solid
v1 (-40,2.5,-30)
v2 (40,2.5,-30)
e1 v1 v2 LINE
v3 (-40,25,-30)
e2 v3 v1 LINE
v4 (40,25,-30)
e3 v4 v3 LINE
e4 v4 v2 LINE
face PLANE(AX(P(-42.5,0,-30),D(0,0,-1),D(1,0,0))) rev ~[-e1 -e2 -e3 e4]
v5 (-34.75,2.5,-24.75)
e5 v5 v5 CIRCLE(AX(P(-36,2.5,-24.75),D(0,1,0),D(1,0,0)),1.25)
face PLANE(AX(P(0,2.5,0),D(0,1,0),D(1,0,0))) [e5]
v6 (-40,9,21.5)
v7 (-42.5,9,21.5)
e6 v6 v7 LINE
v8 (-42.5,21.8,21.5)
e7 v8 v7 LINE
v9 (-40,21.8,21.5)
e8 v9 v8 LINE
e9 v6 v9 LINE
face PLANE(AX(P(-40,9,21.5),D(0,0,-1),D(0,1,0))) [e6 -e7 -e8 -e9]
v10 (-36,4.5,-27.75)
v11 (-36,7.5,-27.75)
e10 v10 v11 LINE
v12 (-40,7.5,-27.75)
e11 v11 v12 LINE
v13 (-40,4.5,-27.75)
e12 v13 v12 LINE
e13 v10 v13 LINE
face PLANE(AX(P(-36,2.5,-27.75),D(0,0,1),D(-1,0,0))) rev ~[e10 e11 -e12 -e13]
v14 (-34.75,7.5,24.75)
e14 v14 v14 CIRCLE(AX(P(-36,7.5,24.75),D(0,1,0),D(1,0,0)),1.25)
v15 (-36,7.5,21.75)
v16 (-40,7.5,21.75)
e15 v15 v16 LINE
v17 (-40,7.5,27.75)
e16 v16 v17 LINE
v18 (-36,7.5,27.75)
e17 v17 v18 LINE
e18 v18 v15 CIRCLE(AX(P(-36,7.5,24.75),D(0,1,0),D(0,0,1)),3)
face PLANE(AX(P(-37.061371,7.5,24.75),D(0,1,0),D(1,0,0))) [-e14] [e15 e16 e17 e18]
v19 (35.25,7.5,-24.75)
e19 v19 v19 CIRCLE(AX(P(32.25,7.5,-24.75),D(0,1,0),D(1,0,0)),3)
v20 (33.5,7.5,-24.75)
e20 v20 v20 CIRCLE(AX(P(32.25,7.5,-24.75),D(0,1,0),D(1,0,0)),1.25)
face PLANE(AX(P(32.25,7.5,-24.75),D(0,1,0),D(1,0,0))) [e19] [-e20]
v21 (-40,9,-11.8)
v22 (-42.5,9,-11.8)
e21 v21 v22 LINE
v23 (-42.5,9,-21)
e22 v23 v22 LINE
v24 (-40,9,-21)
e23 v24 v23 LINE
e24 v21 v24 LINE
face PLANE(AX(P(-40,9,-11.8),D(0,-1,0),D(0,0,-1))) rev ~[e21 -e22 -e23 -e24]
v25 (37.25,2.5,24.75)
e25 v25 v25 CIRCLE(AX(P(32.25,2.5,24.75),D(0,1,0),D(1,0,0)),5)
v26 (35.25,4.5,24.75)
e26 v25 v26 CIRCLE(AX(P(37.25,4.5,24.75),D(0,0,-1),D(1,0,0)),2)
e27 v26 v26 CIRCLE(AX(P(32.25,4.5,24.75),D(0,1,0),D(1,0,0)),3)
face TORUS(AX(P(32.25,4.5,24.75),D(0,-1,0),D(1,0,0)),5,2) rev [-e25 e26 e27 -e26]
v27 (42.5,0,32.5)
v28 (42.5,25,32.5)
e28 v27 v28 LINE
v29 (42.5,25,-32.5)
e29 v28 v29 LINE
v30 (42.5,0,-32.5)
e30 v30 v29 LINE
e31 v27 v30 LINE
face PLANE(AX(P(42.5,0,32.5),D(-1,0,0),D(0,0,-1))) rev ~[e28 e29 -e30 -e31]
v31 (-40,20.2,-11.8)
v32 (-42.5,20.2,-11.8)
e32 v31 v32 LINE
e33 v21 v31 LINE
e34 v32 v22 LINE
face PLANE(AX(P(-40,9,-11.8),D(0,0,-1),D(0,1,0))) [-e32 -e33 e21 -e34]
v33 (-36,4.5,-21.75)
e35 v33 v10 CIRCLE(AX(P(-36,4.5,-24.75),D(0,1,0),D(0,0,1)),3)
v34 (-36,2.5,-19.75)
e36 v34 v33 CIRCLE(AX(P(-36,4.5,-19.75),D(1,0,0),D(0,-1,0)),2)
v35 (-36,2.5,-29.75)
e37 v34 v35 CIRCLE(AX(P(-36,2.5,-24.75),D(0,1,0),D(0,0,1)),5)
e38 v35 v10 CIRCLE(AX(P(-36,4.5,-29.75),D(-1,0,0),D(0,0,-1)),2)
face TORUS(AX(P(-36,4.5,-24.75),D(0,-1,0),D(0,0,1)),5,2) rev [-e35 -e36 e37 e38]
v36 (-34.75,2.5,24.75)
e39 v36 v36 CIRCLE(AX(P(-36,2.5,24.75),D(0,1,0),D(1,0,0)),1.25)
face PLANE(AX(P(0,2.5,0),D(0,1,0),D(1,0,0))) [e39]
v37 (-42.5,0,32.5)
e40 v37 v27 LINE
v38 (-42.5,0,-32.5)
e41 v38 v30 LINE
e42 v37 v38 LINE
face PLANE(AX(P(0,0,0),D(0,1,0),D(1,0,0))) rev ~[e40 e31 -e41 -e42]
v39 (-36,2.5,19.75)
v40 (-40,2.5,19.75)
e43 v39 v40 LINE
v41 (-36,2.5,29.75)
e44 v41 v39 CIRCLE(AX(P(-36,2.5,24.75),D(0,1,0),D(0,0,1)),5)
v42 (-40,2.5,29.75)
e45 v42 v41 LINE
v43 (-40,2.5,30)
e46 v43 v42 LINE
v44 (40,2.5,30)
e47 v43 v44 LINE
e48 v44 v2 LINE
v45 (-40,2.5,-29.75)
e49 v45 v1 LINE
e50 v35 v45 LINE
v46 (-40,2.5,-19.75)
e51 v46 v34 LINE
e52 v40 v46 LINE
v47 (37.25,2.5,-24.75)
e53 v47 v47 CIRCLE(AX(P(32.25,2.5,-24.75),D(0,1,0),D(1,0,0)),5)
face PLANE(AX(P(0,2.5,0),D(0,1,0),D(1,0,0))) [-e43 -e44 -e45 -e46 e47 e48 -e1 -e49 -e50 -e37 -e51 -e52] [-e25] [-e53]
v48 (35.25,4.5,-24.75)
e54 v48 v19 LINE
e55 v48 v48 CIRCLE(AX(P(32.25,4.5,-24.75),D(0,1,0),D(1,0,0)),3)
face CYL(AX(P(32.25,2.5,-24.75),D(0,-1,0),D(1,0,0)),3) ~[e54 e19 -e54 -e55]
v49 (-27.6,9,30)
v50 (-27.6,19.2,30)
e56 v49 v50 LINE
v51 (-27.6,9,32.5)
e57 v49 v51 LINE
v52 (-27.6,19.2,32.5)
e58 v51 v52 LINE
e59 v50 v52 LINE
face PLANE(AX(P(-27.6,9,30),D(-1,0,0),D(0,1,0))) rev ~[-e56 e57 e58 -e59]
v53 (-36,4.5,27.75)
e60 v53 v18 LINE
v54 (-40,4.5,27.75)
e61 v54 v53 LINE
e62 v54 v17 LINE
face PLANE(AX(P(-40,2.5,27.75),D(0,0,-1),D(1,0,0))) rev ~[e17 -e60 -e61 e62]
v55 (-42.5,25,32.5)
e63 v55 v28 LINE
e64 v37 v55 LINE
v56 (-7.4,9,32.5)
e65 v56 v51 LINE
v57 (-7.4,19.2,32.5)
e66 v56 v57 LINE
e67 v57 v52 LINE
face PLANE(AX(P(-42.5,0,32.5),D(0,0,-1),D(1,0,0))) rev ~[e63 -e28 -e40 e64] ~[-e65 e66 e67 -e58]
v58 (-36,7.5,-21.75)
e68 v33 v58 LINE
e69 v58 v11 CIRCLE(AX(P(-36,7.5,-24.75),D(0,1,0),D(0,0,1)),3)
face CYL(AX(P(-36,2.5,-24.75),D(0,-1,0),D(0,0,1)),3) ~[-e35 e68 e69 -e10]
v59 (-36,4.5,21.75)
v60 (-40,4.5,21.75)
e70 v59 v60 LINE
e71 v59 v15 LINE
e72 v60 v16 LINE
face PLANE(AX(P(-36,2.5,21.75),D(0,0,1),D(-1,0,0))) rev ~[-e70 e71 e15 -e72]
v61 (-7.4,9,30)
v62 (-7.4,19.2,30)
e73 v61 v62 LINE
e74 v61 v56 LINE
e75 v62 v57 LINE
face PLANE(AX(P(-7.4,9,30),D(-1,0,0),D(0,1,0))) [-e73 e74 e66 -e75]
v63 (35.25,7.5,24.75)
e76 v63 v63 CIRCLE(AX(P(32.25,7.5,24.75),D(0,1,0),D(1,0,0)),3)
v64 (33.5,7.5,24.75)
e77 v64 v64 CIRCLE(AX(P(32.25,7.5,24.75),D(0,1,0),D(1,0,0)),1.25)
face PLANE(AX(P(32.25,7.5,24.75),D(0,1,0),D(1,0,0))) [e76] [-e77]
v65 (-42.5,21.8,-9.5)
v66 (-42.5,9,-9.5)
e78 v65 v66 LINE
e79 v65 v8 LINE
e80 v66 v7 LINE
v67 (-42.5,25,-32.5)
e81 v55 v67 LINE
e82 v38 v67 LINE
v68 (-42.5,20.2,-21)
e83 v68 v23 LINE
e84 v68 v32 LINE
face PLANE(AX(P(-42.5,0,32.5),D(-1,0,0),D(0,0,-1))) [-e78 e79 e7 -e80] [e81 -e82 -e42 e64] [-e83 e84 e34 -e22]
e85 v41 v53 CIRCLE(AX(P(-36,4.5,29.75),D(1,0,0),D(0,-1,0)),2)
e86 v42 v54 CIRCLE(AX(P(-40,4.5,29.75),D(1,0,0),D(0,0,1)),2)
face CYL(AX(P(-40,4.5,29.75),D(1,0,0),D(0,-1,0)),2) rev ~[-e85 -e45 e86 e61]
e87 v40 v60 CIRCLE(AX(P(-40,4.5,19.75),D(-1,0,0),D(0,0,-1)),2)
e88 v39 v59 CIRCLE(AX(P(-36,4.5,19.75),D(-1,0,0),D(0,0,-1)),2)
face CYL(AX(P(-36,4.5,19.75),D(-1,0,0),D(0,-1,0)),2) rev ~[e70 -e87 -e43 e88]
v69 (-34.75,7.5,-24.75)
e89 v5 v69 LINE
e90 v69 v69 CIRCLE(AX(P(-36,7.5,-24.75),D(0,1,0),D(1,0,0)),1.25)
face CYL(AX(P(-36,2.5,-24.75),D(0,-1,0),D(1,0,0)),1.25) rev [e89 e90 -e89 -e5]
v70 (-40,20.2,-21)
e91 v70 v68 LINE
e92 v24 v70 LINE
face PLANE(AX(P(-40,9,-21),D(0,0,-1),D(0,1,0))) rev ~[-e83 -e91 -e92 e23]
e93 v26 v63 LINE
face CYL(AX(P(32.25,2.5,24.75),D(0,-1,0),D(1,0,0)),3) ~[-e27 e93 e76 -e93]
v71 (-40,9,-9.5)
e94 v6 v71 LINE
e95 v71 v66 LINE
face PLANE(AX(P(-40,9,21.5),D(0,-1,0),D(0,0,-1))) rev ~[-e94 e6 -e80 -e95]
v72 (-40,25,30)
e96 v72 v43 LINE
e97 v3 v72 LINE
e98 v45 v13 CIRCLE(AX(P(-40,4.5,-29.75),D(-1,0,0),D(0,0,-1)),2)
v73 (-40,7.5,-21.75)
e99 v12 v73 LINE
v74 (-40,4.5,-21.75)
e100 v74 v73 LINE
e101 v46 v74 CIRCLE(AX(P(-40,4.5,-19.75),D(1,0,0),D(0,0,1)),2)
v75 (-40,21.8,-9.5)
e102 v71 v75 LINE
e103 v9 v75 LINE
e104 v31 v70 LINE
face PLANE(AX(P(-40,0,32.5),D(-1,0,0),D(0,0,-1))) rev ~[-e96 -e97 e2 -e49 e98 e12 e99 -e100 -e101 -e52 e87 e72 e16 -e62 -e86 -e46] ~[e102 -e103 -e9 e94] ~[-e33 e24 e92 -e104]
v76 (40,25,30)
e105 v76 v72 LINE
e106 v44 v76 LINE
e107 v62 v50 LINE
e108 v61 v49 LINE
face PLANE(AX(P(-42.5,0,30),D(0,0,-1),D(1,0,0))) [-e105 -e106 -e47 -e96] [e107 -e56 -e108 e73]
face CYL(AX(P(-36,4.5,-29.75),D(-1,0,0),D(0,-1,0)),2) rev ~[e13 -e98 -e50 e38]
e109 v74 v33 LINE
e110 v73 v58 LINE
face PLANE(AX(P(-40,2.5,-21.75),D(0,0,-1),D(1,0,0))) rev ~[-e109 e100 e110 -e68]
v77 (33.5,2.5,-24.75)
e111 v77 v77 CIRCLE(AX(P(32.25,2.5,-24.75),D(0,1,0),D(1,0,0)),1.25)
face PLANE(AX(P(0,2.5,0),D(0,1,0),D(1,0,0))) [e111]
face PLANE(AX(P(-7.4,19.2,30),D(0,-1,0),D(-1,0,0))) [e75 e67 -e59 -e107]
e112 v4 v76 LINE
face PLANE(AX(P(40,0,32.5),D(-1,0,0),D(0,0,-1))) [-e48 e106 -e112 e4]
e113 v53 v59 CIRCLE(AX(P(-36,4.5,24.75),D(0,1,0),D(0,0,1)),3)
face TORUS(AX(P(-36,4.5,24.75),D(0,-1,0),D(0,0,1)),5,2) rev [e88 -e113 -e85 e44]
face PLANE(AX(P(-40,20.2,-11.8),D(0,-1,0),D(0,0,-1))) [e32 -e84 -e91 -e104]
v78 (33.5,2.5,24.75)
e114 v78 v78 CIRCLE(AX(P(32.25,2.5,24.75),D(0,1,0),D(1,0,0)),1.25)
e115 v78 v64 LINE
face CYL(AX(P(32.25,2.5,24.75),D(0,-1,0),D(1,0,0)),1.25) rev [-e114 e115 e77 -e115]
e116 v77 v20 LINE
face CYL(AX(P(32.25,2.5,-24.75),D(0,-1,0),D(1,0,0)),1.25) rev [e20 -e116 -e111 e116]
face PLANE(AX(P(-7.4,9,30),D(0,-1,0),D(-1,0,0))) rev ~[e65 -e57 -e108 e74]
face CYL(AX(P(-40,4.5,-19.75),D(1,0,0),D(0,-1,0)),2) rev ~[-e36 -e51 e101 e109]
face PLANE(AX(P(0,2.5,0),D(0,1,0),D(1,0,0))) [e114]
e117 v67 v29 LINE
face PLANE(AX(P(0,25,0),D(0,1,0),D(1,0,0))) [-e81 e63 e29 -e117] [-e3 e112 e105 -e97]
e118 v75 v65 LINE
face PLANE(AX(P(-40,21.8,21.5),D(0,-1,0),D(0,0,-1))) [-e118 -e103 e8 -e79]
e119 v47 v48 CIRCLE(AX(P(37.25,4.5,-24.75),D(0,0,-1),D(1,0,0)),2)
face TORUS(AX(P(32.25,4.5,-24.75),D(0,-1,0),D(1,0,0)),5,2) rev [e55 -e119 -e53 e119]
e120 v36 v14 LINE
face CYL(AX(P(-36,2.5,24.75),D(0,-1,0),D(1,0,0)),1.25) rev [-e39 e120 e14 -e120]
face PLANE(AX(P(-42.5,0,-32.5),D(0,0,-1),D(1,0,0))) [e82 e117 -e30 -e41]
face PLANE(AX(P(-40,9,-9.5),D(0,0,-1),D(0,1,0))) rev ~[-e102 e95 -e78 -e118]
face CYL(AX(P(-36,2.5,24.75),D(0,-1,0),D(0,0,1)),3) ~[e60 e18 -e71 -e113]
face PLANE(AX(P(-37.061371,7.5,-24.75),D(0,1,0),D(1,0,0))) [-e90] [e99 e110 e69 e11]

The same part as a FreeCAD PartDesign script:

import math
import FreeCAD as App
import Part
import Sketcher


def edges_at(feature, points):
    """Names of the edges that pass closest to the given points."""
    edges = feature.Shape.Edges
    near = lambda p: min(range(len(edges)), key=lambda i: edges[i].distToShape(Part.Vertex(*p))[0])
    return sorted({f"Edge{near(p) + 1}" for p in points})


def faces_at(feature, points):
    """Names of the faces that lie closest to the given points."""
    faces = feature.Shape.Faces
    near = lambda p: min(range(len(faces)), key=lambda i: faces[i].distToShape(Part.Vertex(*p))[0])
    return sorted({f"Face{near(p) + 1}" for p in points})

doc = App.newDocument("Part")
params = doc.addObject("Spreadsheet::Sheet", "Params")
for row, (alias, value) in enumerate([
    ("sketch1_width", "85 mm"),
    ("sketch1_height", "65 mm"),
    ("pad1_length", "25 mm"),
    ("thickness_wall", "2.5 mm"),
    ("sketch2_diameter", "6 mm"),
    ("sketch2_diameter2", "2.5 mm"),
    ("sketch2_width", "4 mm"),
    ("pad2_length", "5 mm"),
    ("sketch3_width", "20.2 mm"),
    ("sketch3_height", "10.2 mm"),
    ("sketch4_height", "31 mm"),
    ("sketch4_width", "11.2 mm"),
    ("sketch4_width2", "12.8 mm"),
    ("sketch4_height2", "9.2 mm"),
    ("fillet_radius", "2 mm"),
], start=1):
    params.set(f"A{row}", alias)
    params.set(f"B{row}", "=" + value)
    params.setAlias(f"B{row}", alias)

body = doc.addObject("PartDesign::Body", "Body")

# Sketch on XZ plane
sketch1 = body.newObject("Sketcher::SketchObject", "Sketch")
sketch1.AttachmentSupport = (doc.getObject("XZ_Plane"), [""])
sketch1.MapMode = "FlatFace"
sketch1.addGeometry(Part.LineSegment(App.Vector(-42.5, -32.5, 0), App.Vector(-42.5, 32.5, 0)), False)
sketch1.addGeometry(Part.LineSegment(App.Vector(-42.5, 32.5, 0), App.Vector(42.5, 32.5, 0)), False)
sketch1.addGeometry(Part.LineSegment(App.Vector(42.5, 32.5, 0), App.Vector(42.5, -32.5, 0)), False)
sketch1.addGeometry(Part.LineSegment(App.Vector(42.5, -32.5, 0), App.Vector(-42.5, -32.5, 0)), False)
sketch1.addConstraint(Sketcher.Constraint("Coincident", 0, 2, 1, 1))
sketch1.addConstraint(Sketcher.Constraint("Coincident", 1, 2, 2, 1))
sketch1.addConstraint(Sketcher.Constraint("Coincident", 2, 2, 3, 1))
sketch1.addConstraint(Sketcher.Constraint("Coincident", 3, 2, 0, 1))
sketch1.addConstraint(Sketcher.Constraint("Vertical", 0))
sketch1.addConstraint(Sketcher.Constraint("Horizontal", 1))
sketch1.addConstraint(Sketcher.Constraint("Vertical", 2))
sketch1.addConstraint(Sketcher.Constraint("Horizontal", 3))
sketch1.addConstraint(Sketcher.Constraint("Symmetric", 0, 2, 2, 2, -1, 1))
sketch1.addConstraint(Sketcher.Constraint("DistanceX", 1, 1, 1, 2, 85.0))
sketch1.addConstraint(Sketcher.Constraint("DistanceY", 0, 1, 0, 2, 65.0))
sketch1.setExpression("Constraints[9]", "Params.sketch1_width")
sketch1.setExpression("Constraints[10]", "Params.sketch1_height")
pad1 = body.newObject("PartDesign::Pad", "Pad")
pad1.Profile = sketch1
pad1.setExpression("Length", "Params.pad1_length")
pad1.Reversed = True
doc.recompute()

thickness = body.newObject("PartDesign::Thickness", "Thickness")
thickness.Base = (pad1, faces_at(pad1, [(0, 25, 0)]))
thickness.setExpression("Value", "Params.thickness_wall")
thickness.Reversed = True
thickness.Join = "Intersection"

# Sketch on XZ plane
sketch2 = body.newObject("Sketcher::SketchObject", "Sketch001")
sketch2.AttachmentSupport = (doc.getObject("XZ_Plane"), [""])
sketch2.MapMode = "FlatFace"
sketch2.AttachmentOffset = App.Placement(App.Vector(0, 0, -2.5), App.Rotation())
sketch2.addGeometry(Part.Circle(App.Vector(32.25, -24.75, 0), App.Vector(0, 0, 1), 3), False)
sketch2.addGeometry(Part.Circle(App.Vector(32.25, -24.75, 0), App.Vector(0, 0, 1), 1.25), False)
sketch2.addGeometry(Part.Circle(App.Vector(32.25, 24.75, 0), App.Vector(0, 0, 1), 3), False)
sketch2.addGeometry(Part.Circle(App.Vector(32.25, 24.75, 0), App.Vector(0, 0, 1), 1.25), False)
sketch2.addGeometry(Part.LineSegment(App.Vector(-36, -27.75, 0), App.Vector(-40, -27.75, 0)), False)
sketch2.addGeometry(Part.LineSegment(App.Vector(-40, -27.75, 0), App.Vector(-40, -21.75, 0)), False)
sketch2.addGeometry(Part.LineSegment(App.Vector(-40, -21.75, 0), App.Vector(-36, -21.75, 0)), False)
sketch2.addGeometry(Part.ArcOfCircle(Part.Circle(App.Vector(-36, -24.75, 0), App.Vector(0, 0, 1), 3), math.radians(-90), math.radians(90)), False)
sketch2.addGeometry(Part.Circle(App.Vector(-36, -24.75, 0), App.Vector(0, 0, 1), 1.25), False)
sketch2.addGeometry(Part.LineSegment(App.Vector(-36, 21.75, 0), App.Vector(-40, 21.75, 0)), False)
sketch2.addGeometry(Part.LineSegment(App.Vector(-40, 21.75, 0), App.Vector(-40, 27.75, 0)), False)
sketch2.addGeometry(Part.LineSegment(App.Vector(-40, 27.75, 0), App.Vector(-36, 27.75, 0)), False)
sketch2.addGeometry(Part.ArcOfCircle(Part.Circle(App.Vector(-36, 24.75, 0), App.Vector(0, 0, 1), 3), math.radians(-90), math.radians(90)), False)
sketch2.addGeometry(Part.Circle(App.Vector(-36, 24.75, 0), App.Vector(0, 0, 1), 1.25), False)
sketch2.addConstraint(Sketcher.Constraint("Coincident", 4, 2, 5, 1))
sketch2.addConstraint(Sketcher.Constraint("Coincident", 5, 2, 6, 1))
sketch2.addConstraint(Sketcher.Constraint("Tangent", 6, 2, 7, 2))
sketch2.addConstraint(Sketcher.Constraint("Tangent", 7, 1, 4, 1))
sketch2.addConstraint(Sketcher.Constraint("Coincident", 9, 2, 10, 1))
sketch2.addConstraint(Sketcher.Constraint("Coincident", 10, 2, 11, 1))
sketch2.addConstraint(Sketcher.Constraint("Tangent", 11, 2, 12, 2))
sketch2.addConstraint(Sketcher.Constraint("Tangent", 12, 1, 9, 1))
sketch2.addConstraint(Sketcher.Constraint("Horizontal", 4))
sketch2.addConstraint(Sketcher.Constraint("Vertical", 5))
sketch2.addConstraint(Sketcher.Constraint("Horizontal", 6))
sketch2.addConstraint(Sketcher.Constraint("Horizontal", 9))
sketch2.addConstraint(Sketcher.Constraint("Vertical", 10))
sketch2.addConstraint(Sketcher.Constraint("Horizontal", 11))
sketch2.addConstraint(Sketcher.Constraint("Coincident", 1, 3, 0, 3))
sketch2.addConstraint(Sketcher.Constraint("Coincident", 3, 3, 2, 3))
sketch2.addConstraint(Sketcher.Constraint("Coincident", 8, 3, 7, 3))
sketch2.addConstraint(Sketcher.Constraint("Coincident", 13, 3, 12, 3))
sketch2.addConstraint(Sketcher.Constraint("Equal", 0, 2))
sketch2.addConstraint(Sketcher.Constraint("Equal", 1, 3))
sketch2.addConstraint(Sketcher.Constraint("Equal", 2, 7))
sketch2.addConstraint(Sketcher.Constraint("Equal", 3, 8))
sketch2.addConstraint(Sketcher.Constraint("Equal", 7, 12))
sketch2.addConstraint(Sketcher.Constraint("Equal", 8, 13))
sketch2.addConstraint(Sketcher.Constraint("Symmetric", 0, 3, 2, 3, -1))
sketch2.addConstraint(Sketcher.Constraint("Symmetric", 7, 3, 12, 3, -1))
sketch2.addConstraint(Sketcher.Constraint("Horizontal", 1, 3, 7, 3))
sketch2.addConstraint(Sketcher.Constraint("Vertical", 5, 2, 9, 2))
sketch2.addConstraint(Sketcher.Constraint("Diameter", 0, 6.0))
sketch2.addConstraint(Sketcher.Constraint("Diameter", 1, 2.5))
sketch2.addConstraint(Sketcher.Constraint("DistanceX", 4, 2, 4, 1, 4.0))
sketch2.addConstraint(Sketcher.Constraint("DistanceX", 7, 3, -1, 1, 36.0))
sketch2.addConstraint(Sketcher.Constraint("DistanceY", 0, 3, 2, 3, 49.5))
sketch2.addConstraint(Sketcher.Constraint("DistanceX", -1, 1, 0, 3, 32.25))
sketch2.setExpression("Constraints[28]", "Params.sketch2_diameter")
sketch2.setExpression("Constraints[29]", "Params.sketch2_diameter2")
sketch2.setExpression("Constraints[30]", "Params.sketch2_width")
pad2 = body.newObject("PartDesign::Pad", "Pad001")
pad2.Profile = sketch2
pad2.setExpression("Length", "Params.pad2_length")
pad2.Reversed = True

# Sketch on XY plane
sketch3 = body.newObject("Sketcher::SketchObject", "Sketch002")
sketch3.AttachmentSupport = (doc.getObject("XY_Plane"), [""])
sketch3.MapMode = "FlatFace"
sketch3.AttachmentOffset = App.Placement(App.Vector(0, 0, 30), App.Rotation())
sketch3.addGeometry(Part.LineSegment(App.Vector(-7.4, 19.2, 0), App.Vector(-7.4, 9, 0)), False)
sketch3.addGeometry(Part.LineSegment(App.Vector(-7.4, 9, 0), App.Vector(-27.6, 9, 0)), False)
sketch3.addGeometry(Part.LineSegment(App.Vector(-27.6, 9, 0), App.Vector(-27.6, 19.2, 0)), False)
sketch3.addGeometry(Part.LineSegment(App.Vector(-27.6, 19.2, 0), App.Vector(-7.4, 19.2, 0)), False)
sketch3.addConstraint(Sketcher.Constraint("Coincident", 0, 2, 1, 1))
sketch3.addConstraint(Sketcher.Constraint("Coincident", 1, 2, 2, 1))
sketch3.addConstraint(Sketcher.Constraint("Coincident", 2, 2, 3, 1))
sketch3.addConstraint(Sketcher.Constraint("Coincident", 3, 2, 0, 1))
sketch3.addConstraint(Sketcher.Constraint("Vertical", 0))
sketch3.addConstraint(Sketcher.Constraint("Horizontal", 1))
sketch3.addConstraint(Sketcher.Constraint("Vertical", 2))
sketch3.addConstraint(Sketcher.Constraint("Horizontal", 3))
sketch3.addConstraint(Sketcher.Constraint("DistanceX", 1, 2, 1, 1, 20.2))
sketch3.addConstraint(Sketcher.Constraint("DistanceY", 0, 2, 0, 1, 10.2))
sketch3.addConstraint(Sketcher.Constraint("DistanceY", -1, 1, 0, 2, 9.0))
sketch3.addConstraint(Sketcher.Constraint("DistanceX", 0, 2, -1, 1, 7.4))
sketch3.setExpression("Constraints[8]", "Params.sketch3_width")
sketch3.setExpression("Constraints[9]", "Params.sketch3_height")
pocket1 = body.newObject("PartDesign::Pocket", "Pocket")
pocket1.Profile = sketch3
pocket1.Type = "ThroughAll"
pocket1.Reversed = True

# Sketch on YZ plane
sketch4 = body.newObject("Sketcher::SketchObject", "Sketch003")
sketch4.AttachmentSupport = (doc.getObject("YZ_Plane"), [""])
sketch4.MapMode = "FlatFace"
sketch4.AttachmentOffset = App.Placement(App.Vector(0, 0, -40), App.Rotation())
sketch4.addGeometry(Part.LineSegment(App.Vector(20.2, -11.8, 0), App.Vector(9, -11.8, 0)), False)
sketch4.addGeometry(Part.LineSegment(App.Vector(9, -11.8, 0), App.Vector(9, -21, 0)), False)
sketch4.addGeometry(Part.LineSegment(App.Vector(9, -21, 0), App.Vector(20.2, -21, 0)), False)
sketch4.addGeometry(Part.LineSegment(App.Vector(20.2, -21, 0), App.Vector(20.2, -11.8, 0)), False)
sketch4.addGeometry(Part.LineSegment(App.Vector(21.8, 21.5, 0), App.Vector(9, 21.5, 0)), False)
sketch4.addGeometry(Part.LineSegment(App.Vector(9, 21.5, 0), App.Vector(9, -9.5, 0)), False)
sketch4.addGeometry(Part.LineSegment(App.Vector(9, -9.5, 0), App.Vector(21.8, -9.5, 0)), False)
sketch4.addGeometry(Part.LineSegment(App.Vector(21.8, -9.5, 0), App.Vector(21.8, 21.5, 0)), False)
sketch4.addConstraint(Sketcher.Constraint("Coincident", 0, 2, 1, 1))
sketch4.addConstraint(Sketcher.Constraint("Coincident", 1, 2, 2, 1))
sketch4.addConstraint(Sketcher.Constraint("Coincident", 2, 2, 3, 1))
sketch4.addConstraint(Sketcher.Constraint("Coincident", 3, 2, 0, 1))
sketch4.addConstraint(Sketcher.Constraint("Coincident", 4, 2, 5, 1))
sketch4.addConstraint(Sketcher.Constraint("Coincident", 5, 2, 6, 1))
sketch4.addConstraint(Sketcher.Constraint("Coincident", 6, 2, 7, 1))
sketch4.addConstraint(Sketcher.Constraint("Coincident", 7, 2, 4, 1))
sketch4.addConstraint(Sketcher.Constraint("Horizontal", 0))
sketch4.addConstraint(Sketcher.Constraint("Vertical", 1))
sketch4.addConstraint(Sketcher.Constraint("Horizontal", 2))
sketch4.addConstraint(Sketcher.Constraint("Vertical", 3))
sketch4.addConstraint(Sketcher.Constraint("Horizontal", 4))
sketch4.addConstraint(Sketcher.Constraint("Vertical", 5))
sketch4.addConstraint(Sketcher.Constraint("Horizontal", 6))
sketch4.addConstraint(Sketcher.Constraint("Vertical", 7))
sketch4.addConstraint(Sketcher.Constraint("Vertical", 1, 2, 4, 2))
sketch4.addConstraint(Sketcher.Constraint("DistanceY", 5, 2, 5, 1, 31.0))
sketch4.addConstraint(Sketcher.Constraint("DistanceX", 0, 2, 0, 1, 11.2))
sketch4.addConstraint(Sketcher.Constraint("DistanceX", 4, 2, 4, 1, 12.8))
sketch4.addConstraint(Sketcher.Constraint("DistanceY", 1, 2, 1, 1, 9.2))
sketch4.addConstraint(Sketcher.Constraint("DistanceX", -1, 1, 0, 2, 9.0))
sketch4.addConstraint(Sketcher.Constraint("DistanceY", 1, 2, -1, 1, 21.0))
sketch4.addConstraint(Sketcher.Constraint("DistanceY", -1, 1, 4, 2, 21.5))
sketch4.setExpression("Constraints[17]", "Params.sketch4_height")
sketch4.setExpression("Constraints[18]", "Params.sketch4_width")
sketch4.setExpression("Constraints[19]", "Params.sketch4_width2")
sketch4.setExpression("Constraints[20]", "Params.sketch4_height2")
pocket2 = body.newObject("PartDesign::Pocket", "Pocket001")
pocket2.Profile = sketch4
pocket2.Type = "ThroughAll"
doc.recompute()

fillet = body.newObject("PartDesign::Fillet", "Fillet")
fillet.Base = (pocket2, edges_at(pocket2, [
    (29.25, 2.5, -24.75),
    (29.25, 2.5, 24.75),
    (-33, 2.5, -24.75),
    (-38, 2.5, -27.75),
    (-38, 2.5, -21.75),
    (-33, 2.5, 24.75),
    (-38, 2.5, 21.75),
    (-38, 2.5, 27.75),
]))
fillet.setExpression("Radius", "Params.fillet_radius")

doc.recompute()
